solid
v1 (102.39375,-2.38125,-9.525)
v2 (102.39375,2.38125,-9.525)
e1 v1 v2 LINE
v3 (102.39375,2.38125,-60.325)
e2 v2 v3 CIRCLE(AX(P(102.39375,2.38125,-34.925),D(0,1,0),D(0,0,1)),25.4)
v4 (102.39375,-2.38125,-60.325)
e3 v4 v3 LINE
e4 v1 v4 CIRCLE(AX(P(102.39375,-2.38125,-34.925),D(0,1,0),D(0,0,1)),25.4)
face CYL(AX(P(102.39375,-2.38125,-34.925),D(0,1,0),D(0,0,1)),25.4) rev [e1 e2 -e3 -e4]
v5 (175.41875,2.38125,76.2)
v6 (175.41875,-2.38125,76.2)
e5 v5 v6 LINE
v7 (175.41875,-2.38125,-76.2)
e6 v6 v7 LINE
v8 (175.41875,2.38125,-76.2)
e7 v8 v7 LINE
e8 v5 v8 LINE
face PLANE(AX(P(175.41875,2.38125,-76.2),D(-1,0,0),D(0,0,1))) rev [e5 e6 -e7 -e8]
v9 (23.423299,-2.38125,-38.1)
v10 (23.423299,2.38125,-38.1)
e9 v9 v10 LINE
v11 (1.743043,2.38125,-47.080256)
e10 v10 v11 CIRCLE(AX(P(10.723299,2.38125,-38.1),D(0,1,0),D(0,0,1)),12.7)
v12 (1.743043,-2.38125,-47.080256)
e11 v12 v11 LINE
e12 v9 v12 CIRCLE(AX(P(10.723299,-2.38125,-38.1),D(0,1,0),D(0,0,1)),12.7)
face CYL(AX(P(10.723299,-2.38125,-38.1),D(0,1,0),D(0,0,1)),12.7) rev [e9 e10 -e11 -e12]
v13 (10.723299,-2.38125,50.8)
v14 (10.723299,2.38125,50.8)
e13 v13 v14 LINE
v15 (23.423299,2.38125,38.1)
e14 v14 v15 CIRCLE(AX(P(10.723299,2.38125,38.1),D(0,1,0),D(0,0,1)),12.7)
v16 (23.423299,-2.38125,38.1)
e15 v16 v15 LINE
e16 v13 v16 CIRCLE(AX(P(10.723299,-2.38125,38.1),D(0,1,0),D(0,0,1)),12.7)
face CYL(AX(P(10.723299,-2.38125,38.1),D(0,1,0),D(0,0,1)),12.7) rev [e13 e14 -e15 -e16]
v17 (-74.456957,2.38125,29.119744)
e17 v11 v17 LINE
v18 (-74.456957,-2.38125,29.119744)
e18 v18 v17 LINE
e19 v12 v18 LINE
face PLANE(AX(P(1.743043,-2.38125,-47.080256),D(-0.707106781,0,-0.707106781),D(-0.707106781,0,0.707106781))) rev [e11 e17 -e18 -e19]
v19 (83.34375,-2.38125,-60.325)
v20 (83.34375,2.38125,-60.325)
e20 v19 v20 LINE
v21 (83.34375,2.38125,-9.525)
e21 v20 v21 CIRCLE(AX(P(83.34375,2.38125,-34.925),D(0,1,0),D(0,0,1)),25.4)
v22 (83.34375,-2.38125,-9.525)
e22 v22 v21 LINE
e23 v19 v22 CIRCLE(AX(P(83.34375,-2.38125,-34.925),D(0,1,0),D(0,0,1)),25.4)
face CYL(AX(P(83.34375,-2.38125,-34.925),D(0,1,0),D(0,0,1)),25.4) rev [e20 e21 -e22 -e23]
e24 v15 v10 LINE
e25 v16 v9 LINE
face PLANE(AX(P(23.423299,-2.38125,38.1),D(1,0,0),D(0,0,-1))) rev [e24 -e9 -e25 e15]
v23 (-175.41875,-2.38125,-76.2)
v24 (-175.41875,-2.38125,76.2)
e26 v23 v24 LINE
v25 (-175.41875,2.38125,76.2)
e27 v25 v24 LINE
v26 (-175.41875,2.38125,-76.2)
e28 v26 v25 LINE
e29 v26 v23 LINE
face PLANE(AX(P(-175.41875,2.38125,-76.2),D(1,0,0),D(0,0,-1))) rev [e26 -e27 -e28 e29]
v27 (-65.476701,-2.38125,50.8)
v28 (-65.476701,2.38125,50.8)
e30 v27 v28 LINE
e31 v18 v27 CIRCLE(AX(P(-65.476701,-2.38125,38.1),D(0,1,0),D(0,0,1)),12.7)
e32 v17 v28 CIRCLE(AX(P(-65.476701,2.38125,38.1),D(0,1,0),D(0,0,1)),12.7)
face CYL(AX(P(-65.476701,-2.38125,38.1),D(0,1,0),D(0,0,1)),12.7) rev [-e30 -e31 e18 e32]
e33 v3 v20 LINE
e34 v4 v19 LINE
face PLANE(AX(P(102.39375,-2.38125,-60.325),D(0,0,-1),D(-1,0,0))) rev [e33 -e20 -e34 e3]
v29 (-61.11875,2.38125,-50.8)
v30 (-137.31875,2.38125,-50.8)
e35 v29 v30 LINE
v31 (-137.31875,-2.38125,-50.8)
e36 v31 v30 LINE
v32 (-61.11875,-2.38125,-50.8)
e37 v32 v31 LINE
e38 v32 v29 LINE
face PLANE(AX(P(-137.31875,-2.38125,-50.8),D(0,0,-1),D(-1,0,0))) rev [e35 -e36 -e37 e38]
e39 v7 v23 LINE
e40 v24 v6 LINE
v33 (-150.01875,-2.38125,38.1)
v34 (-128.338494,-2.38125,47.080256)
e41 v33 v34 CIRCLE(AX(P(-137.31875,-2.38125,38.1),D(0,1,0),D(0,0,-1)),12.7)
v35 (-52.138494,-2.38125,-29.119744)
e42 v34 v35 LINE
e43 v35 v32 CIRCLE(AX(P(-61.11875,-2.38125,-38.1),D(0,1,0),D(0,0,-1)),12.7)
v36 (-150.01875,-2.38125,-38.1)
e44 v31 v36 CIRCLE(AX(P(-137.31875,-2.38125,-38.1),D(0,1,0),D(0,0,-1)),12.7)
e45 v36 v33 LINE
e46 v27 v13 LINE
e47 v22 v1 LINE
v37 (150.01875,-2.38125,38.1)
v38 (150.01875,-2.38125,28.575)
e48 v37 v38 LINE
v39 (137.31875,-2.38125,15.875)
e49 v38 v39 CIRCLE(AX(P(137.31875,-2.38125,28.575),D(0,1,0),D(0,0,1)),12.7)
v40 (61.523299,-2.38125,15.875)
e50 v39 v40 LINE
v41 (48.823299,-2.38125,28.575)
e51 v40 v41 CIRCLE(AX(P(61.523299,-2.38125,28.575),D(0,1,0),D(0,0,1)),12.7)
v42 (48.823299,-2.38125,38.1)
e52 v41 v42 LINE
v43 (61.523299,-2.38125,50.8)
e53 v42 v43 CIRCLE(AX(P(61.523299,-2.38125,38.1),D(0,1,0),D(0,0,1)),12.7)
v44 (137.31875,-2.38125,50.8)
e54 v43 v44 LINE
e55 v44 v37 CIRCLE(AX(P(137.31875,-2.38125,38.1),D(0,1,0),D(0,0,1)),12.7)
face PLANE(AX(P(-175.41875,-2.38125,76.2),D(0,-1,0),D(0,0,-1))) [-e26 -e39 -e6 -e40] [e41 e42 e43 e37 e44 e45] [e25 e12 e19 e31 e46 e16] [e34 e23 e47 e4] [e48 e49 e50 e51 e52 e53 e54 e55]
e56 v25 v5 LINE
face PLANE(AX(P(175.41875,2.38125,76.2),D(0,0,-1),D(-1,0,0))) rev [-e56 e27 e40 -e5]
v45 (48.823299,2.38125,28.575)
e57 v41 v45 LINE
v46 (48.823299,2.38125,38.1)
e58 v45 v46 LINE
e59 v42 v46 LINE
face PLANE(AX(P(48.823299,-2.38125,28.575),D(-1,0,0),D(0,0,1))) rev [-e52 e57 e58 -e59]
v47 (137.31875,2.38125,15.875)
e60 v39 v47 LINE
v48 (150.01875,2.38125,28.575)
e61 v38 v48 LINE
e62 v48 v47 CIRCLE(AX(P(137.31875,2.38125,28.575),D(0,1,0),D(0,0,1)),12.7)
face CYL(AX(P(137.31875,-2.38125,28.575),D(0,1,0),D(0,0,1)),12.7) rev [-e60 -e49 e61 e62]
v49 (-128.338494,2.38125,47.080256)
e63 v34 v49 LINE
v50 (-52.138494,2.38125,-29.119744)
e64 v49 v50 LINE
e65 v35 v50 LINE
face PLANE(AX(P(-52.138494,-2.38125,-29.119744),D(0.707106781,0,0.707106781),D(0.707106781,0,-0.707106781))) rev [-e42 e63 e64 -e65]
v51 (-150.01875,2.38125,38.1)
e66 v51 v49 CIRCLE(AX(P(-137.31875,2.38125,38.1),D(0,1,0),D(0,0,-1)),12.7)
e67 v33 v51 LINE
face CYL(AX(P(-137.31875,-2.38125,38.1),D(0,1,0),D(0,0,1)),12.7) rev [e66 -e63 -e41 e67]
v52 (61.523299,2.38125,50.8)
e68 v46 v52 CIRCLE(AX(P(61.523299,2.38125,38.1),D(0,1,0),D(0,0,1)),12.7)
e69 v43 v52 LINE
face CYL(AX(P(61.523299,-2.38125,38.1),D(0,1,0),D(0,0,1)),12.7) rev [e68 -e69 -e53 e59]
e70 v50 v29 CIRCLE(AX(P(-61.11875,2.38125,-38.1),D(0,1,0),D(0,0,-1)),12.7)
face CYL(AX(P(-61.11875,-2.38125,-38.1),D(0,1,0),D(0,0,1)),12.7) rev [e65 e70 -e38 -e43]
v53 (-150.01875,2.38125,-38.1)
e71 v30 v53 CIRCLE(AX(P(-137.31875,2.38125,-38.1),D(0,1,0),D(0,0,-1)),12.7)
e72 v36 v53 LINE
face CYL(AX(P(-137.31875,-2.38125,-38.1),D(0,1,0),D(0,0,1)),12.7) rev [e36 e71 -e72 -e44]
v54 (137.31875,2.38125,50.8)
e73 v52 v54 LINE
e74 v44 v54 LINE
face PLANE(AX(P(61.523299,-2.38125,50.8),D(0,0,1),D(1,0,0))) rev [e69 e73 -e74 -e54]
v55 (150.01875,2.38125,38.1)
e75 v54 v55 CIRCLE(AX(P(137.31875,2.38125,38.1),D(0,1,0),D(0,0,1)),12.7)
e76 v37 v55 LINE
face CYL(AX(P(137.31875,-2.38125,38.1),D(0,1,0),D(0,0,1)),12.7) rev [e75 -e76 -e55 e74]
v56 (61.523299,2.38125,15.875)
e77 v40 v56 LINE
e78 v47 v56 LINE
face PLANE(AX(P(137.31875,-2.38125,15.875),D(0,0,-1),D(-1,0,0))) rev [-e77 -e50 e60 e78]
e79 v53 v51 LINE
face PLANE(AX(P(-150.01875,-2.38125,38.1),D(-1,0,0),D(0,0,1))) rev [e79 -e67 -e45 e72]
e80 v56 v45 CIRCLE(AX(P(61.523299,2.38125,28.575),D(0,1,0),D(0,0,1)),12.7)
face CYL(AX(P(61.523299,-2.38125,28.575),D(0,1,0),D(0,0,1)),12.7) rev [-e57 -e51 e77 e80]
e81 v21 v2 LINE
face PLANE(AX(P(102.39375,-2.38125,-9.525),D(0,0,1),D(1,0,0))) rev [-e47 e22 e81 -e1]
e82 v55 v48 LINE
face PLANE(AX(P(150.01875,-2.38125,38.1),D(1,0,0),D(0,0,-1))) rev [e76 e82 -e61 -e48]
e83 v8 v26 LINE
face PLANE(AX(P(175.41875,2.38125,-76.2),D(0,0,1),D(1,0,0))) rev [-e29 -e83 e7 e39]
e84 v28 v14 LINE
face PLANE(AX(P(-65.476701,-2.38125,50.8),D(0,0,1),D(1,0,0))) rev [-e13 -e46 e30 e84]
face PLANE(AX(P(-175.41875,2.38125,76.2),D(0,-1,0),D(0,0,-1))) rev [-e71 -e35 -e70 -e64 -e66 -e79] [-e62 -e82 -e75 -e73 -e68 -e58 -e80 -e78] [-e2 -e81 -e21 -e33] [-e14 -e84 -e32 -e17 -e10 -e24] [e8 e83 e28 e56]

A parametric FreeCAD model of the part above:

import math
import FreeCAD as App
import Part
import Sketcher
from FreeCAD import Vector
Q = App.Units.Quantity

doc = App.newDocument("Part")
body = doc.addObject("PartDesign::Body", "Body")

sketch1 = body.newObject("Sketcher::SketchObject", "Sketch")
sketch1.AttachmentSupport = (doc.getObject("XZ_Plane"), [""])
sketch1.MapMode = "FlatFace"
sketch1.addGeometry([
    Part.LineSegment(Vector(-175, -76, 0), Vector(-175, 76, 0)),
    Part.LineSegment(Vector(-175, 76, 0), Vector(175, 76, 0)),
    Part.LineSegment(Vector(175, 76, 0), Vector(175, -76, 0)),
    Part.LineSegment(Vector(175, -76, 0), Vector(-175, -76, 0)),
], False)
sketch1.addConstraint([
    Sketcher.Constraint("Coincident", 0, 2, 1, 1),
    Sketcher.Constraint("Coincident", 1, 2, 2, 1),
    Sketcher.Constraint("Coincident", 2, 2, 3, 1),
    Sketcher.Constraint("Coincident", 3, 2, 0, 1),
    Sketcher.Constraint("Vertical", 0),
    Sketcher.Constraint("Horizontal", 1),
    Sketcher.Constraint("Vertical", 2),
    Sketcher.Constraint("Horizontal", 3),
    Sketcher.Constraint("Symmetric", 0, 2, 2, 2, -1, 1),
    Sketcher.Constraint("DistanceY", 0, 1, 0, 2, Q("6 in")),
    Sketcher.Constraint("DistanceX", 1, 1, 1, 2, Q("13.8125 in")),
])
pad1 = body.newObject("PartDesign::Pad", "Pad")
pad1.Profile = sketch1
pad1.Length = Q("0.1875 in")
pad1.Midplane = True

sketch2 = body.newObject("Sketcher::SketchObject", "Sketch001")
sketch2.AttachmentSupport = (doc.getObject("XZ_Plane"), [""])
sketch2.MapMode = "FlatFace"
sketch2.AttachmentOffset = App.Placement(Vector(0, 0, -0.09375 * 25.4), App.Rotation())
sketch2.addGeometry([
    Part.LineSegment(Vector(83, -10, 0), Vector(102, -10, 0)),
    Part.ArcOfCircle(Part.Circle(Vector(102, -35, 0), Vector(0, 0, 1), 25), math.radians(-90), math.radians(90)),
    Part.LineSegment(Vector(102, -60, 0), Vector(83, -60, 0)),
    Part.ArcOfCircle(Part.Circle(Vector(83, -35, 0), Vector(0, 0, 1), 25), math.radians(90), math.radians(270)),
    Part.LineSegment(Vector(-61, -51, 0), Vector(-137, -51, 0)),
    Part.ArcOfCircle(Part.Circle(Vector(-137, -38, 0), Vector(0, 0, 1), 13), math.radians(180), math.radians(270)),
    Part.LineSegment(Vector(-150, -38, 0), Vector(-150, 38, 0)),
    Part.ArcOfCircle(Part.Circle(Vector(-137, 38, 0), Vector(0, 0, 1), 13), math.radians(45), math.radians(180)),
    Part.LineSegment(Vector(-128, 47, 0), Vector(-52, -29, 0)),
    Part.ArcOfCircle(Part.Circle(Vector(-61, -38, 0), Vector(0, 0, 1), 13), math.radians(-90), math.radians(45)),
    Part.LineSegment(Vector(-65, 51, 0), Vector(11, 51, 0)),
    Part.ArcOfCircle(Part.Circle(Vector(11, 38, 0), Vector(0, 0, 1), 13), math.radians(0), math.radians(90)),
    Part.LineSegment(Vector(23, 38, 0), Vector(23, -38, 0)),
    Part.ArcOfCircle(Part.Circle(Vector(11, -38, 0), Vector(0, 0, 1), 13), math.radians(-135), math.radians(0)),
    Part.LineSegment(Vector(2, -47, 0), Vector(-74, 29, 0)),
    Part.ArcOfCircle(Part.Circle(Vector(-65, 38, 0), Vector(0, 0, 1), 13), math.radians(90), math.radians(225)),
    Part.LineSegment(Vector(62, 51, 0), Vector(137, 51, 0)),
    Part.ArcOfCircle(Part.Circle(Vector(137, 38, 0), Vector(0, 0, 1), 13), math.radians(0), math.radians(90)),
    Part.LineSegment(Vector(150, 38, 0), Vector(150, 29, 0)),
    Part.ArcOfCircle(Part.Circle(Vector(137, 29, 0), Vector(0, 0, 1), 13), math.radians(-90), math.radians(0)),
    Part.LineSegment(Vector(137, 16, 0), Vector(62, 16, 0)),
    Part.ArcOfCircle(Part.Circle(Vector(62, 29, 0), Vector(0, 0, 1), 13), math.radians(180), math.radians(270)),
    Part.LineSegment(Vector(49, 29, 0), Vector(49, 38, 0)),
    Part.ArcOfCircle(Part.Circle(Vector(62, 38, 0), Vector(0, 0, 1), 13), math.radians(90), math.radians(180)),
], False)
sketch2.addConstraint([
    Sketcher.Constraint("Tangent", 0, 2, 1, 2),
    Sketcher.Constraint("Tangent", 1, 1, 2, 1),
    Sketcher.Constraint("Tangent", 2, 2, 3, 2),
    Sketcher.Constraint("Tangent", 3, 1, 0, 1),
    Sketcher.Constraint("Tangent", 4, 2, 5, 2),
    Sketcher.Constraint("Tangent", 5, 1, 6, 1),
    Sketcher.Constraint("Tangent", 6, 2, 7, 2),
    Sketcher.Constraint("Tangent", 7, 1, 8, 1),
    Sketcher.Constraint("Tangent", 8, 2, 9, 2),
    Sketcher.Constraint("Tangent", 9, 1, 4, 1),
    Sketcher.Constraint("Tangent", 10, 2, 11, 2),
    Sketcher.Constraint("Tangent", 11, 1, 12, 1),
    Sketcher.Constraint("Tangent", 12, 2, 13, 2),
    Sketcher.Constraint("Tangent", 13, 1, 14, 1),
    Sketcher.Constraint("Tangent", 14, 2, 15, 2),
    Sketcher.Constraint("Tangent", 15, 1, 10, 1),
    Sketcher.Constraint("Tangent", 16, 2, 17, 2),
    Sketcher.Constraint("Tangent", 17, 1, 18, 1),
    Sketcher.Constraint("Tangent", 18, 2, 19, 2),
    Sketcher.Constraint("Tangent", 19, 1, 20, 1),
    Sketcher.Constraint("Tangent", 20, 2, 21, 2),
    Sketcher.Constraint("Tangent", 21, 1, 22, 1),
    Sketcher.Constraint("Tangent", 22, 2, 23, 2),
    Sketcher.Constraint("Tangent", 23, 1, 16, 1),
    Sketcher.Constraint("Horizontal", 0),
    Sketcher.Constraint("Horizontal", 2),
    Sketcher.Constraint("Horizontal", 4),
    Sketcher.Constraint("Vertical", 6),
    Sketcher.Constraint("Horizontal", 10),
    Sketcher.Constraint("Vertical", 12),
    Sketcher.Constraint("Horizontal", 16),
    Sketcher.Constraint("Vertical", 18),
    Sketcher.Constraint("Horizontal", 20),
    Sketcher.Constraint("Vertical", 22),
    Sketcher.Constraint("Equal", 5, 7),
    Sketcher.Constraint("Equal", 7, 9),
    Sketcher.Constraint("Equal", 9, 11),
    Sketcher.Constraint("Equal", 11, 13),
    Sketcher.Constraint("Equal", 13, 15),
    Sketcher.Constraint("Equal", 15, 17),
    Sketcher.Constraint("Equal", 17, 19),
    Sketcher.Constraint("Equal", 19, 21),
    Sketcher.Constraint("Equal", 21, 23),
    Sketcher.Constraint("Symmetric", 5, 3, 17, 3, -1, 1),
    Sketcher.Constraint("Parallel", 8, 14),
    Sketcher.Constraint("Horizontal", 7, 3, 11, 3),
    Sketcher.Constraint("Horizontal", 9, 3, 13, 3),
    Sketcher.Constraint("Horizontal", 15, 3, 17, 3),
    Sketcher.Constraint("Equal", 10, 6),
    Sketcher.Constraint("Radius", 1, Q("1 in")),
    Sketcher.Constraint("Radius", 5, Q("0.5 in")),
    Sketcher.Constraint("DistanceX", 4, 2, 4, 1, Q("3 in")),
    Sketcher.Constraint("DistanceX", 11, 3, 21, 3, Q("2 in")),
    Sketcher.Constraint("DistanceY", 3, 1, 20, 2, Q("1 in")),
    Sketcher.Constraint("DistanceX", 0, 1, 0, 2, Q("0.75 in")),
    Sketcher.Constraint("DistanceY", 18, 2, 18, 1, Q("0.375 in")),
    Sketcher.Constraint("DistanceX", -1, 1, 1, 3, Q("4.03125 in")),
    Sketcher.Constraint("DistanceX", 5, 3, -1, 1, Q("5.40625 in")),
    Sketcher.Constraint("DistanceX", 16, 1, 16, 2, 75.795451),
])
pocket1 = body.newObject("PartDesign::Pocket", "Pocket")
pocket1.Profile = sketch2
pocket1.Type = "ThroughAll"
pocket1.Reversed = True

doc.recompute()
